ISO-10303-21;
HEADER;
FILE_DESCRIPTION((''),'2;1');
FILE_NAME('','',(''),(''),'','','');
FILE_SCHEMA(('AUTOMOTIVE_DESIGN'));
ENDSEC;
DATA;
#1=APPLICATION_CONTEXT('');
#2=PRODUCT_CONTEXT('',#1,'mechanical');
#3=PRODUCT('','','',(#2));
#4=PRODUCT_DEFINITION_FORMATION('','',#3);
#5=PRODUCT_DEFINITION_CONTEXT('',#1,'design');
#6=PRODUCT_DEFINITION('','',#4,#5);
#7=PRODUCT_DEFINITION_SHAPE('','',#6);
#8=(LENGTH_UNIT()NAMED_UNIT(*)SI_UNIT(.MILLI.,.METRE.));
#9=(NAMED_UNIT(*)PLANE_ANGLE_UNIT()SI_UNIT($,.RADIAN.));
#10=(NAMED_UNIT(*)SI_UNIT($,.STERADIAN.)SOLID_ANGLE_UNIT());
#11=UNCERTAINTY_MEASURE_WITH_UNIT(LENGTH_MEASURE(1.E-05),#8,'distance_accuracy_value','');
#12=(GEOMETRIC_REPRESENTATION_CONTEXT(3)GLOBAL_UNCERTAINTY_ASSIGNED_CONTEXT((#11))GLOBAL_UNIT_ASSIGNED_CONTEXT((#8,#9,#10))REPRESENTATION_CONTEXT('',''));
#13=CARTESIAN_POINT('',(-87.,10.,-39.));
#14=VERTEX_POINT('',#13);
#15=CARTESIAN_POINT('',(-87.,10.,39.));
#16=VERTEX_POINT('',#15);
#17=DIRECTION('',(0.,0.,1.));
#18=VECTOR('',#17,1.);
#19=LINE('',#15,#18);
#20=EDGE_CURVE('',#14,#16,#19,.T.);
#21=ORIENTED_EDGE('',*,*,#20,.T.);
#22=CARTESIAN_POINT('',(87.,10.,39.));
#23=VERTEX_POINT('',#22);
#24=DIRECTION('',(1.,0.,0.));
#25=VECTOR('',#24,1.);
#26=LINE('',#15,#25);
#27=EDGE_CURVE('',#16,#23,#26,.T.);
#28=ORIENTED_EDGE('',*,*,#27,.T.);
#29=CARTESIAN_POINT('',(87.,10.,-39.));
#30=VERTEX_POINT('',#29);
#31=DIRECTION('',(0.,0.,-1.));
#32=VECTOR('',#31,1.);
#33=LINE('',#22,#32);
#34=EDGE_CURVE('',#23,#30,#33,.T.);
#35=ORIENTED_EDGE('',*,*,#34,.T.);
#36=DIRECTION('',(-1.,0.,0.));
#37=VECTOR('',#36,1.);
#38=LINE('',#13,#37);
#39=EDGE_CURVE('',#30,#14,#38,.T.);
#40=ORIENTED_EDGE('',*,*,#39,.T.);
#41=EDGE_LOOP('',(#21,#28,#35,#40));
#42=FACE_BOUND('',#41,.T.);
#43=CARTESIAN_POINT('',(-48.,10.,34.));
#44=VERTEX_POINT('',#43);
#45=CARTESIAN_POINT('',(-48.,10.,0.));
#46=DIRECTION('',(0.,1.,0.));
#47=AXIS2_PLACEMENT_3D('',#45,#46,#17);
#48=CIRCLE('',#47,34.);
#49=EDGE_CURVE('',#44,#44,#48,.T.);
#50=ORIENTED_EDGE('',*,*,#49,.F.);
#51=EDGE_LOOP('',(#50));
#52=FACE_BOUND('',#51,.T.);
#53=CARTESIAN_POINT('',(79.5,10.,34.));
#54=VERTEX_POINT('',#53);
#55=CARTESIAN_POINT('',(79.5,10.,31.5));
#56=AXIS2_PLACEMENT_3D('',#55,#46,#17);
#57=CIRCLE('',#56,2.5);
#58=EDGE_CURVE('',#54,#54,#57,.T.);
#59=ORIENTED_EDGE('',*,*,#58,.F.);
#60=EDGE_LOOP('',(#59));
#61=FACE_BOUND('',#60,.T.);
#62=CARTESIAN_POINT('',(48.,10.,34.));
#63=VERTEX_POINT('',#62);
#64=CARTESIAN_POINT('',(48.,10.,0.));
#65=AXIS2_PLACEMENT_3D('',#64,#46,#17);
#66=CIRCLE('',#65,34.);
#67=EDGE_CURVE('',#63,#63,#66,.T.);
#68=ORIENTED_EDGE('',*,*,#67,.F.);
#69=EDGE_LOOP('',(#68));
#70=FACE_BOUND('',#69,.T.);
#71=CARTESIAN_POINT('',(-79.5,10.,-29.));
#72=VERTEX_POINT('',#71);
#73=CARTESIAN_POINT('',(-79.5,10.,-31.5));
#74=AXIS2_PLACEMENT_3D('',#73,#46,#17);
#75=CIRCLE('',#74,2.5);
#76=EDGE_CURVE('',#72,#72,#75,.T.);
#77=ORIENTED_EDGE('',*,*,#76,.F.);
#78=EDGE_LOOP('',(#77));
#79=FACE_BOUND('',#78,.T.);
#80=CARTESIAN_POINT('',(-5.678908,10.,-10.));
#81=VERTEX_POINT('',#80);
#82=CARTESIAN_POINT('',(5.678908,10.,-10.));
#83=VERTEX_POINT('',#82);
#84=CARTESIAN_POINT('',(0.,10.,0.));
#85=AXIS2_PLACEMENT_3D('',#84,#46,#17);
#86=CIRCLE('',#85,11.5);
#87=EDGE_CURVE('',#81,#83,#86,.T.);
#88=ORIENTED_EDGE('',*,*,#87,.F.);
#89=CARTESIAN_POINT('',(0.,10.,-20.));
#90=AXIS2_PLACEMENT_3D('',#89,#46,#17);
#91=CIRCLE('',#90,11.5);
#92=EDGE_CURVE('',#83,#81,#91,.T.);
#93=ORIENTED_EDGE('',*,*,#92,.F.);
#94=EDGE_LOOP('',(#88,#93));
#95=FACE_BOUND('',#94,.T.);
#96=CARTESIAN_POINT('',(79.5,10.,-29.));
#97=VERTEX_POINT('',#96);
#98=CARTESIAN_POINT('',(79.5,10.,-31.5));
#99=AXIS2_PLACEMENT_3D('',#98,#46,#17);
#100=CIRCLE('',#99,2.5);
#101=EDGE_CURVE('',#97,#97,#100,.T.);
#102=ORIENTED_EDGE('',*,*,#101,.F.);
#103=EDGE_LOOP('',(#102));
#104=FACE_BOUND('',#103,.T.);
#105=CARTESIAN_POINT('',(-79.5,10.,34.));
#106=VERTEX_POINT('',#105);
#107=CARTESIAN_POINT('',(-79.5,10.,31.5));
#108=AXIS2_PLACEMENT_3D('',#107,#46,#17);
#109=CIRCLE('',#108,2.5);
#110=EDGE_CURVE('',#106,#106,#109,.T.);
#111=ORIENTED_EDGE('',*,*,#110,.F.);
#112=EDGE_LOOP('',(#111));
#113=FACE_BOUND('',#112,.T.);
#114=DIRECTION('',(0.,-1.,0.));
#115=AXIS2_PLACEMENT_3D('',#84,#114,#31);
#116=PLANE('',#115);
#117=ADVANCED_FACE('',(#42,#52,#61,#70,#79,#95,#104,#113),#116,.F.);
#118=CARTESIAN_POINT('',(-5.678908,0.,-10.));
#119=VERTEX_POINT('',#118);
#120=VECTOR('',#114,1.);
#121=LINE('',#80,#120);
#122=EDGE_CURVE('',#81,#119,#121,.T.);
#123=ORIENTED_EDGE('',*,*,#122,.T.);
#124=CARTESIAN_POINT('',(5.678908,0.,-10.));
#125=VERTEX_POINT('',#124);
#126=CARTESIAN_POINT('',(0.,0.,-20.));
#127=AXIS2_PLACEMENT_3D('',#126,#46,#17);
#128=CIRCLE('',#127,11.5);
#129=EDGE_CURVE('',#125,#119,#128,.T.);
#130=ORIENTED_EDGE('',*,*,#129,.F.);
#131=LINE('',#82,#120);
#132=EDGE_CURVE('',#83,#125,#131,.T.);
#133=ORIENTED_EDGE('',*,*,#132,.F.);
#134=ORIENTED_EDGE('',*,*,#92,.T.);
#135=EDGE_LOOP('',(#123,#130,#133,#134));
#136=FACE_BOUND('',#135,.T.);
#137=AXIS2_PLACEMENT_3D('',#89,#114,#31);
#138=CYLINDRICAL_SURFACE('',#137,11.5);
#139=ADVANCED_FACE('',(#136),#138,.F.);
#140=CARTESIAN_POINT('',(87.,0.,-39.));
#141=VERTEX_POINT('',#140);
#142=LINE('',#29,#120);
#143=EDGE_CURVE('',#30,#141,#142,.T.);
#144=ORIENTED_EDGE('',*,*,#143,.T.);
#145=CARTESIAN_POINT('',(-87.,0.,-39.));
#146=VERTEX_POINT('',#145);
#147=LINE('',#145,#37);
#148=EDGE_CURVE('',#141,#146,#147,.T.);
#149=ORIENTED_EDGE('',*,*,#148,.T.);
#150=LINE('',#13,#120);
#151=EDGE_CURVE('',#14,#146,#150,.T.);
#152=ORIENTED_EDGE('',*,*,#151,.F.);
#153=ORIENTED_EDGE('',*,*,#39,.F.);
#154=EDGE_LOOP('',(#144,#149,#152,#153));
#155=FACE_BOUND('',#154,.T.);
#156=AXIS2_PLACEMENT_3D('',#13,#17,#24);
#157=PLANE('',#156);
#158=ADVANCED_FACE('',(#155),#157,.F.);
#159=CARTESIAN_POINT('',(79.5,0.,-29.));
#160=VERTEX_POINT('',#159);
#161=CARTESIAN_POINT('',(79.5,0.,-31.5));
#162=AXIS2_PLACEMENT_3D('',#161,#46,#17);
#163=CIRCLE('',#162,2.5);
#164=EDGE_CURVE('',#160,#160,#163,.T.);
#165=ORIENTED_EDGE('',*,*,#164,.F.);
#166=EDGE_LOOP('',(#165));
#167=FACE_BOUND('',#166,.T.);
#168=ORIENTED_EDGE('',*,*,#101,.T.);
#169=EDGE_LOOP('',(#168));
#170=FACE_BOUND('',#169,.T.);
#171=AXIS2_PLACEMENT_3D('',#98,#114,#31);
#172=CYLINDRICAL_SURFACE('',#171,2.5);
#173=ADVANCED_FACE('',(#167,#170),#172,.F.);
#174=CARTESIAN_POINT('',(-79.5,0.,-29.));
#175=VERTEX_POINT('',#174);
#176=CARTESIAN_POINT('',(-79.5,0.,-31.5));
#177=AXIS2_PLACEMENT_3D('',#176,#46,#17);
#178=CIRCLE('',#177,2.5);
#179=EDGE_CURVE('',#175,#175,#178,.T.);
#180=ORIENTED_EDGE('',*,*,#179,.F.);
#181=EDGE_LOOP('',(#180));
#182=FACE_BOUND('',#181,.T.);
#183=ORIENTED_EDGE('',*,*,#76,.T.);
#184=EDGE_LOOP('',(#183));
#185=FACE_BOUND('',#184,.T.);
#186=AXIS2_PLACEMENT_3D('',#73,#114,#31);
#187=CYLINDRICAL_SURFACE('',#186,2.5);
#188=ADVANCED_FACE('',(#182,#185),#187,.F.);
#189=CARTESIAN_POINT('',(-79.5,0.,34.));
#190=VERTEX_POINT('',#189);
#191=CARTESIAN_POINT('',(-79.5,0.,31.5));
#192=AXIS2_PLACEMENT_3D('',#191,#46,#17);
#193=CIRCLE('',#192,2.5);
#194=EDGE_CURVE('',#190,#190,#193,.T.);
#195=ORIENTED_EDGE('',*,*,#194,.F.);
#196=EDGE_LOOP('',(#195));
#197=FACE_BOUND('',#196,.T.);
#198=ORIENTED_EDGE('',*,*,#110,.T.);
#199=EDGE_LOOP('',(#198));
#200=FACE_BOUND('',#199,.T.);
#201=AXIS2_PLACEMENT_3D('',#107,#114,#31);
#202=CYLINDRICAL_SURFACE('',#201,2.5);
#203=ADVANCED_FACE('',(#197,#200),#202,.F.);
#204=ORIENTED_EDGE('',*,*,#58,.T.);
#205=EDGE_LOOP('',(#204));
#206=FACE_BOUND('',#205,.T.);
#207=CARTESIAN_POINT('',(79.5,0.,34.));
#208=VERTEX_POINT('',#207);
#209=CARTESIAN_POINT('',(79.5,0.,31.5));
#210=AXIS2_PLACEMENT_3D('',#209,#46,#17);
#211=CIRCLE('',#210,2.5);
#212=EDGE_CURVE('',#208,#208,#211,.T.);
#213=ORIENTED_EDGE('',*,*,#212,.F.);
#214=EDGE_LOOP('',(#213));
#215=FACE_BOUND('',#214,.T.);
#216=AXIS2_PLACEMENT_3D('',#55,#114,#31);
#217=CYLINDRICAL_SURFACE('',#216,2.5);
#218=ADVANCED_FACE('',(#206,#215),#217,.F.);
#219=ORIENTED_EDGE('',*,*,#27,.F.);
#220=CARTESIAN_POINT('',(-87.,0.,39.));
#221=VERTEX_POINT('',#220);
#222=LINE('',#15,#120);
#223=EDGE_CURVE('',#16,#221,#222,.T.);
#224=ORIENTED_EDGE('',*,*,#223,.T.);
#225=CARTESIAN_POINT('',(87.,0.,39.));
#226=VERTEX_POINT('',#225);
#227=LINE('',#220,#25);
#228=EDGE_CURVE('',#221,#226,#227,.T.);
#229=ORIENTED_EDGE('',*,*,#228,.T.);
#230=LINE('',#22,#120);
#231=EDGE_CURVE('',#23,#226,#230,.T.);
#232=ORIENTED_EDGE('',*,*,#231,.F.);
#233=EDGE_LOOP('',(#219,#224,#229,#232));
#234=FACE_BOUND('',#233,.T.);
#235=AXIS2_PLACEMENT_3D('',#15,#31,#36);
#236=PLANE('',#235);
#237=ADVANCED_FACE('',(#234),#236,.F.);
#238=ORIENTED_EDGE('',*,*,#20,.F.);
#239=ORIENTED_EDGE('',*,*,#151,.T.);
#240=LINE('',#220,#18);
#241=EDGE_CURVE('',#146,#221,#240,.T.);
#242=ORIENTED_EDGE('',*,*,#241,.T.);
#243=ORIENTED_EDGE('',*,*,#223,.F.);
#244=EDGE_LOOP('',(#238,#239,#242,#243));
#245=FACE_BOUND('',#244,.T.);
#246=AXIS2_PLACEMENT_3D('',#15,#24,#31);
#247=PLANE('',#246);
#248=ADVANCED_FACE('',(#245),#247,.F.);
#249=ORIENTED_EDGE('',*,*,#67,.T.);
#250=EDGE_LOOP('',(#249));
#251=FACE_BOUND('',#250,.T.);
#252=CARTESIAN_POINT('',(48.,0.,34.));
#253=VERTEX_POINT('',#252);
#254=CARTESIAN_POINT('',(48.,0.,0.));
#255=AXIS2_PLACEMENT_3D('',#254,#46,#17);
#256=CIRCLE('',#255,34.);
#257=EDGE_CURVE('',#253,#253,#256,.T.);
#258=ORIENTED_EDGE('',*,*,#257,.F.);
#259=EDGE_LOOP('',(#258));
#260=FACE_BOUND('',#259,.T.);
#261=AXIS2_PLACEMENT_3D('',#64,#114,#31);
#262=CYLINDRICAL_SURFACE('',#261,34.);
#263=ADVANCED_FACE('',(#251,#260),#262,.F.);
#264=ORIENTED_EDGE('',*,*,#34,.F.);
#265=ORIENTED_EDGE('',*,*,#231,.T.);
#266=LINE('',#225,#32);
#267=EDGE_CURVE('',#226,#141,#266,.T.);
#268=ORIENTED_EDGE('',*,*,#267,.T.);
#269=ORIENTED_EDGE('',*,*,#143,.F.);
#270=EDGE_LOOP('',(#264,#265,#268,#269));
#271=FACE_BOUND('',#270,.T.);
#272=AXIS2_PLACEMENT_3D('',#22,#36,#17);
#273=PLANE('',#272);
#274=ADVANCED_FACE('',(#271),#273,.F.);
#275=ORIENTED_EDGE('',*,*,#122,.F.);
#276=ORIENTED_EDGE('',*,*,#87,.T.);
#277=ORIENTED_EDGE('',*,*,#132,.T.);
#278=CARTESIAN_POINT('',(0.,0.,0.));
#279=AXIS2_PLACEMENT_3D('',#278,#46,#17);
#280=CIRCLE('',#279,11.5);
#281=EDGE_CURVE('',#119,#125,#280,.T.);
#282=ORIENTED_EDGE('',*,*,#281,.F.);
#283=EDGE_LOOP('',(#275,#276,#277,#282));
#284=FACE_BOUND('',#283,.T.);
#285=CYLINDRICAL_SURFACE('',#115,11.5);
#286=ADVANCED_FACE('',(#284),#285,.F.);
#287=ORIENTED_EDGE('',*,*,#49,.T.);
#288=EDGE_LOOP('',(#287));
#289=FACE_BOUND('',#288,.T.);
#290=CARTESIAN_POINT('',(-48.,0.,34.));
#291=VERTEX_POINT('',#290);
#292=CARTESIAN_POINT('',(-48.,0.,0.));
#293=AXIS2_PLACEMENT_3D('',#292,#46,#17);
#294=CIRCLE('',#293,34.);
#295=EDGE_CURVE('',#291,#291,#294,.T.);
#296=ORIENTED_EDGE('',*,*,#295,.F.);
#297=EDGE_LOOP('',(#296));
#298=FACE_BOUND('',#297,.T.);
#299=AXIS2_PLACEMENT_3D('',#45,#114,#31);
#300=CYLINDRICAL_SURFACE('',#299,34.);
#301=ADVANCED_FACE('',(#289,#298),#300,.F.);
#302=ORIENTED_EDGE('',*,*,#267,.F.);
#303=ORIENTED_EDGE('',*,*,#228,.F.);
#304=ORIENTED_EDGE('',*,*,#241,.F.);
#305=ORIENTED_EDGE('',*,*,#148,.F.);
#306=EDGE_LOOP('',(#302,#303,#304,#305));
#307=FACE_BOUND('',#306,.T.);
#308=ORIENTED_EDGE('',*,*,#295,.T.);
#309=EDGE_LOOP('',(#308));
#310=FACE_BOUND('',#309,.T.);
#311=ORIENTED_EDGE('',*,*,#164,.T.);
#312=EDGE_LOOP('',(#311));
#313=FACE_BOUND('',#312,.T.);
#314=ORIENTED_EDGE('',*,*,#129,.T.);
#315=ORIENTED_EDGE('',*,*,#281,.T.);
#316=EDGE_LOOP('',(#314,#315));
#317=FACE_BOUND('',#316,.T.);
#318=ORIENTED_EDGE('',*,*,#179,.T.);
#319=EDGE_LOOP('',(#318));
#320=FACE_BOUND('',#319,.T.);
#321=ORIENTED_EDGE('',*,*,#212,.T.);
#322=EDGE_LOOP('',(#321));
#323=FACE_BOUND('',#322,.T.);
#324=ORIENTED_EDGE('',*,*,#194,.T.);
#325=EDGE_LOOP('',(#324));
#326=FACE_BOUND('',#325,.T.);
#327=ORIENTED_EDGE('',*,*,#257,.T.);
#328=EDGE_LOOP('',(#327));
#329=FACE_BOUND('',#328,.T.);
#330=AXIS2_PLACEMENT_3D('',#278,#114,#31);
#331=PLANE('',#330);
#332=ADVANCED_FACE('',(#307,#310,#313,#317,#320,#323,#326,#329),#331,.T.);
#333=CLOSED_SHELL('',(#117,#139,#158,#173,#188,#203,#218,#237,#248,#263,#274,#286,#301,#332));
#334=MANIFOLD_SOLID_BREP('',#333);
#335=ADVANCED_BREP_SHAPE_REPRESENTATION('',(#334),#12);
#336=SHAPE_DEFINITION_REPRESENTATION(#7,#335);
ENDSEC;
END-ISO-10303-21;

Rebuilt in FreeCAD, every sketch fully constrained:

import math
import FreeCAD as App
import Part
import Sketcher
from FreeCAD import Vector


def add_polygon(sketch, points):
    """Adds a closed chain of lines whose ends are joined by coincident constraints."""
    first, n = sketch.GeometryCount, len(points)
    for a, b in zip(points, points[1:] + points[:1]):
        sketch.addGeometry(Part.LineSegment(App.Vector(*a, 0), App.Vector(*b, 0)), False)
    for i in range(n):
        sketch.addConstraint(Sketcher.Constraint("Coincident", first + i, 2, first + (i + 1) % n, 1))

doc = App.newDocument("Part")
body = doc.addObject("PartDesign::Body", "Body")

# Sketch on XZ plane
sketch1 = doc.addObject("Sketcher::SketchObject", "Sketch")
body.addObject(sketch1)
sketch1.AttachmentSupport = (doc.XZ_Plane, [""])
sketch1.MapMode = "FlatFace"
add_polygon(sketch1, [(-87, -39), (-87, 39), (87, 39), (87, -39)])  # lines 0-3
sketch1.addGeometry(Part.Circle(Vector(-79.5, 31.5, 0), Vector(0, 0, 1), 2.5), False)  # 4
sketch1.addGeometry(Part.Circle(Vector(79.5, 31.5, 0), Vector(0, 0, 1), 2.5), False)  # 5
sketch1.addGeometry(Part.Circle(Vector(-48, 0, 0), Vector(0, 0, 1), 34), False)  # 6
sketch1.addGeometry(Part.Circle(Vector(-79.5, -31.5, 0), Vector(0, 0, 1), 2.5), False)  # 7
sketch1.addGeometry(Part.ArcOfCircle(Part.Circle(Vector(0, 0, 0), Vector(0, 0, 1), 11.5), math.radians(-60.408154), math.radians(240.408154)), False)  # 8
sketch1.addGeometry(Part.ArcOfCircle(Part.Circle(Vector(0, -20, 0), Vector(0, 0, 1), 11.5), math.radians(119.591846), math.radians(420.408154)), False)  # 9
sketch1.addGeometry(Part.Circle(Vector(48, 0, 0), Vector(0, 0, 1), 34), False)  # 10
sketch1.addGeometry(Part.Circle(Vector(79.5, -31.5, 0), Vector(0, 0, 1), 2.5), False)  # 11
sketch1.addConstraint([
    Sketcher.Constraint("Coincident", 8, 1, 9, 2),
    Sketcher.Constraint("Coincident", 9, 1, 8, 2),
    Sketcher.Constraint("Vertical", 0),
    Sketcher.Constraint("Horizontal", 1),
    Sketcher.Constraint("Vertical", 2),
    Sketcher.Constraint("Horizontal", 3),
    Sketcher.Constraint("Coincident", 8, 3, -1, 1),
    Sketcher.Constraint("Equal", 4, 5),
    Sketcher.Constraint("Equal", 5, 7),
    Sketcher.Constraint("Equal", 8, 9),
    Sketcher.Constraint("Equal", 6, 10),
    Sketcher.Constraint("Equal", 7, 11),
    Sketcher.Constraint("Symmetric", 5, 3, 7, 3, -1, 1),
    Sketcher.Constraint("Symmetric", 6, 3, 10, 3, -1, 1),
    Sketcher.Constraint("Symmetric", 4, 3, 11, 3, -1, 1),
    Sketcher.Constraint("Symmetric", 0, 2, 2, 2, -1, 1),
    Sketcher.Constraint("Symmetric", 4, 3, 5, 3, -2),
    Sketcher.Constraint("PointOnObject", 6, 3, -1),
    Sketcher.Constraint("PointOnObject", 9, 3, -2),
    Sketcher.Constraint("Diameter", 4, 5.0),
    Sketcher.Constraint("Diameter", 6, 68.0),
    Sketcher.Constraint("Radius", 8, 11.5),
    Sketcher.Constraint("DistanceX", 1, 1, 1, 2, 174.0),
    Sketcher.Constraint("DistanceY", 0, 1, 0, 2, 78.0),
    Sketcher.Constraint("DistanceX", 6, 3, -1, 1, 48.0),
    Sketcher.Constraint("DistanceY", 9, 3, -1, 1, 20.0),
    Sketcher.Constraint("DistanceX", 4, 3, 5, 3, 159.0),
    Sketcher.Constraint("DistanceY", 7, 3, 4, 3, 63.0),
])
pad1 = doc.addObject("PartDesign::Pad", "Pad")
body.addObject(pad1)
pad1.Profile = sketch1
pad1.Length = 10
pad1.Reversed = True

doc.recompute()
